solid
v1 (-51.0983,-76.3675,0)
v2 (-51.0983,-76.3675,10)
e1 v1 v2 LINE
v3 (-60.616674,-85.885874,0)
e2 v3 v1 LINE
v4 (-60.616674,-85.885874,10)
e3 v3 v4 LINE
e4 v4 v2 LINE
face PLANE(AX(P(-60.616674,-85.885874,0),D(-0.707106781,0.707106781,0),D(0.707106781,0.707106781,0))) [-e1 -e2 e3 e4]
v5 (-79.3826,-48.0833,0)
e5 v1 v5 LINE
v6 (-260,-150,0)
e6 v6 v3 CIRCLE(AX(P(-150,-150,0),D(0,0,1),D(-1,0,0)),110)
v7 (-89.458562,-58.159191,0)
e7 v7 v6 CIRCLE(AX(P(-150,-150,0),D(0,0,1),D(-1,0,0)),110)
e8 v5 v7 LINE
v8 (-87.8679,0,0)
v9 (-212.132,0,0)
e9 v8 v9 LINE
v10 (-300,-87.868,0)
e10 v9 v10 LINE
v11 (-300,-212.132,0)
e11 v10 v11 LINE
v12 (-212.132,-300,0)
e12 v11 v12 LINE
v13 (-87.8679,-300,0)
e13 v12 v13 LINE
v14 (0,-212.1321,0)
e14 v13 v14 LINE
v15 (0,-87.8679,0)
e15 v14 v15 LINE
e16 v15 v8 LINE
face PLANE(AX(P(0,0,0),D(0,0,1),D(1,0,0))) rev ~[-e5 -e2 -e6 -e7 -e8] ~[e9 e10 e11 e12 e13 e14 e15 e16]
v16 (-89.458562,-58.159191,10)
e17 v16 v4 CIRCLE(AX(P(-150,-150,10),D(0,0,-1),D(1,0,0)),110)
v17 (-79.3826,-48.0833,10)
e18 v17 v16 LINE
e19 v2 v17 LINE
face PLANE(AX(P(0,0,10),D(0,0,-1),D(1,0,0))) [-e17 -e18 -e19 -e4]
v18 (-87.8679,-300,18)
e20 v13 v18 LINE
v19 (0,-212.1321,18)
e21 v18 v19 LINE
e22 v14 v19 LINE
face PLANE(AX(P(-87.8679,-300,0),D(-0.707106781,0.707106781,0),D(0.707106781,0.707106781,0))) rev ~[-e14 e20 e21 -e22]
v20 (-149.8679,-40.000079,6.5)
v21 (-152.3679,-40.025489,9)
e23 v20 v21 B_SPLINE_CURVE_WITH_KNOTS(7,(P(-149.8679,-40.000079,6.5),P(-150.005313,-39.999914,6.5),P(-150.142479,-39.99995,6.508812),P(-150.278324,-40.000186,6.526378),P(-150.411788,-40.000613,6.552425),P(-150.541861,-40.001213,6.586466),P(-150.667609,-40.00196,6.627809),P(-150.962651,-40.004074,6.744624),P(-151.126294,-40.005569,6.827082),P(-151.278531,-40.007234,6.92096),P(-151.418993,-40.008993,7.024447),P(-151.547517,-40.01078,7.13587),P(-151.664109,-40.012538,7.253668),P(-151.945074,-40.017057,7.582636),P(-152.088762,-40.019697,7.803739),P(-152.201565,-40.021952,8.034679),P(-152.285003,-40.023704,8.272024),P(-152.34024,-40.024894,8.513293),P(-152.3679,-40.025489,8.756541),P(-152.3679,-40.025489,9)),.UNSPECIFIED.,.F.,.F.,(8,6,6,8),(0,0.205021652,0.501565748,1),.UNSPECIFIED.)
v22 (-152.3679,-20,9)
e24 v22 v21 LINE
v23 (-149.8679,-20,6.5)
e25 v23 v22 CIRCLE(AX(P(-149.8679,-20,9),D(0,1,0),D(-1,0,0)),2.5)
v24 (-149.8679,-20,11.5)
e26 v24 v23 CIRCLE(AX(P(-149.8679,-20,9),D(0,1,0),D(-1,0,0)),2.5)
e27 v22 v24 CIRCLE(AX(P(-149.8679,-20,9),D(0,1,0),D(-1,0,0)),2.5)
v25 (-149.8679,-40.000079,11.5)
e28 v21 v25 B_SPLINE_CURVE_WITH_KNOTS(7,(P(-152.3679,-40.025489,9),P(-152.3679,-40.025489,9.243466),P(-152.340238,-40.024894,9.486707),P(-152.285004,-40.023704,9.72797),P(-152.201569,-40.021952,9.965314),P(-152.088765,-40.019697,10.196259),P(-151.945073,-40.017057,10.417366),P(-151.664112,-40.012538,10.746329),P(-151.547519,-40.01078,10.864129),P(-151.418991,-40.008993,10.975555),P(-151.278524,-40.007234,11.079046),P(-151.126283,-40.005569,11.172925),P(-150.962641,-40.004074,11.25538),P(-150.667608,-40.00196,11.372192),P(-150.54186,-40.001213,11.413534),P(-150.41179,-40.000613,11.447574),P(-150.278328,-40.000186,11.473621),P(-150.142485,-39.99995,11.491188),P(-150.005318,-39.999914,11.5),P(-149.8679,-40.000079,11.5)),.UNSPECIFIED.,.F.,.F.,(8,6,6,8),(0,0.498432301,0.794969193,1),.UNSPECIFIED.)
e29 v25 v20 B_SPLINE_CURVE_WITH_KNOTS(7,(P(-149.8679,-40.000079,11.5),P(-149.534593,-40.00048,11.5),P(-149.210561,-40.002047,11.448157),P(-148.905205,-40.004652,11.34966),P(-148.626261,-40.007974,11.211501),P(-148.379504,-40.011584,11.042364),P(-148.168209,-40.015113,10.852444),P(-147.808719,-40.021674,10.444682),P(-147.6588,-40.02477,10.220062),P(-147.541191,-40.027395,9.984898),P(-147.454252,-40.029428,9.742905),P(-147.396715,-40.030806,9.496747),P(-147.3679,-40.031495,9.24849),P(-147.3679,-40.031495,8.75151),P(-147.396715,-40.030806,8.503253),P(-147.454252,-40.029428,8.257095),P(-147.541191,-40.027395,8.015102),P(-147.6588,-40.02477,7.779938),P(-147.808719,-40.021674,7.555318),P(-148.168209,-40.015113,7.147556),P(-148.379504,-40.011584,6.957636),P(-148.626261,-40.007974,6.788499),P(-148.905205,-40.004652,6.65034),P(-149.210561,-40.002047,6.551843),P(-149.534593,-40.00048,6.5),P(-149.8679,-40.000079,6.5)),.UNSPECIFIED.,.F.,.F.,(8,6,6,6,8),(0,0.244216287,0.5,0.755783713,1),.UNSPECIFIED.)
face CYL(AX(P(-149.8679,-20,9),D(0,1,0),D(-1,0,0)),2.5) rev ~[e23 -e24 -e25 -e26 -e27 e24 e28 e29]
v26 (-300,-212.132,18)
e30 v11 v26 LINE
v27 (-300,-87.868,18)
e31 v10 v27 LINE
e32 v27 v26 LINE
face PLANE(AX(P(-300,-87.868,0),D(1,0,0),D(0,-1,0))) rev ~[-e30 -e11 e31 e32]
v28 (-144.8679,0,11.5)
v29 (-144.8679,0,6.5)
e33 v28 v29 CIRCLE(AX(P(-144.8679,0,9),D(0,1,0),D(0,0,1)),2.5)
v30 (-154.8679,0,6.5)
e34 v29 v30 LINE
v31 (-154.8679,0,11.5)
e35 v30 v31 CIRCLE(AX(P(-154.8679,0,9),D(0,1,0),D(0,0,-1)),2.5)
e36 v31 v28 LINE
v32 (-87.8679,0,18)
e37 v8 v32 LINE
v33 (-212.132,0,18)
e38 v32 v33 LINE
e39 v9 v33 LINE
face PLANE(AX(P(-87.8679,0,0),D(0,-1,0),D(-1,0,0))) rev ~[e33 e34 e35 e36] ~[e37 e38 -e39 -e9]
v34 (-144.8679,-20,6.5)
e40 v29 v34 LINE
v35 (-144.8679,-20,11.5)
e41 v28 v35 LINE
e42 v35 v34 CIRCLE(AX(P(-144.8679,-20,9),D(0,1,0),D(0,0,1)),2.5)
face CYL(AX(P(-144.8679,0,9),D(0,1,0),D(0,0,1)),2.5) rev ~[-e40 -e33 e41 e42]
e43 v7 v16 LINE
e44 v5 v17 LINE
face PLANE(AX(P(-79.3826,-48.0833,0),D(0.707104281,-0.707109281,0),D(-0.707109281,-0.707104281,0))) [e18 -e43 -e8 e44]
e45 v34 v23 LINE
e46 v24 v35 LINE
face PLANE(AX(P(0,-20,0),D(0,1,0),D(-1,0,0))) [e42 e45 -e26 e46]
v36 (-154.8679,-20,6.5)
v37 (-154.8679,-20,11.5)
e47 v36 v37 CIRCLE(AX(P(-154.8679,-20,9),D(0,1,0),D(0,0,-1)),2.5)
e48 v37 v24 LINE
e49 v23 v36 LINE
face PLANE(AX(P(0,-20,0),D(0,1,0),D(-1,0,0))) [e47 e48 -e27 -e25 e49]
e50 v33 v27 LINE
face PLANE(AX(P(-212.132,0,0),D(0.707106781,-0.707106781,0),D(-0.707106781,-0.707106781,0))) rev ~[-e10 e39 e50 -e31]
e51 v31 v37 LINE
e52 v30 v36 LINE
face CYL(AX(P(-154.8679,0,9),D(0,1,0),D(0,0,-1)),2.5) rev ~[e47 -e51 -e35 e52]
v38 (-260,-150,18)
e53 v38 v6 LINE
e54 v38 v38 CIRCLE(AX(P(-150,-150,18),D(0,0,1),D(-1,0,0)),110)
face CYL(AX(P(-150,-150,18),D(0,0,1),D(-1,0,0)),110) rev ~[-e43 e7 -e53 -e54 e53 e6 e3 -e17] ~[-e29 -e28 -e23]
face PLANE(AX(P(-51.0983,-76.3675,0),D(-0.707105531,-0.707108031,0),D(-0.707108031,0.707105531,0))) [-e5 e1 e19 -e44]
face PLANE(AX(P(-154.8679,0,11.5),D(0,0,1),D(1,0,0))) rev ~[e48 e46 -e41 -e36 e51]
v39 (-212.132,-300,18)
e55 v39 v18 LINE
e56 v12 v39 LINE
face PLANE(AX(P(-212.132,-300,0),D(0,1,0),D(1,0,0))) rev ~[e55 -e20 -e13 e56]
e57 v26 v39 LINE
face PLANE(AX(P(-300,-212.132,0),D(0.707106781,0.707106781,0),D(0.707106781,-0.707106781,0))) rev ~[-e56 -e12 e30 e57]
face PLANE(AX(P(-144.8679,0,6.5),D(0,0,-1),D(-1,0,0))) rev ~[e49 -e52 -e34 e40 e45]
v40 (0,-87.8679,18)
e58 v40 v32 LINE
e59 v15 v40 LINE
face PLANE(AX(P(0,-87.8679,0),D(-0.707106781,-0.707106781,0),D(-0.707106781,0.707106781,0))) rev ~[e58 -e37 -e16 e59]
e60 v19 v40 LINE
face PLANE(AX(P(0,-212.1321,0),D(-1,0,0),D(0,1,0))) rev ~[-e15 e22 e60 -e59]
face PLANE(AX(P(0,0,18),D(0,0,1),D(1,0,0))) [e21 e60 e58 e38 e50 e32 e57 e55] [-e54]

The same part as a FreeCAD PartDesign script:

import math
import FreeCAD as App
import Part
import Sketcher
from FreeCAD import Vector
Q = App.Units.Quantity

doc = App.newDocument("Part")
body = doc.addObject("PartDesign::Body", "Body")

sketch1 = body.newObject("Sketcher::SketchObject", "Sketch")
sketch1.AttachmentSupport = (doc.getObject("XY_Plane"), [""])
sketch1.MapMode = "FlatFace"
sketch1.addGeometry([
    Part.LineSegment(Vector(0, -88, 0), Vector(-88, 0, 0)),
    Part.LineSegment(Vector(-88, 0, 0), Vector(-212, 0, 0)),
    Part.LineSegment(Vector(-212, 0, 0), Vector(-300, -88, 0)),
    Part.LineSegment(Vector(-300, -88, 0), Vector(-300, -212, 0)),
    Part.LineSegment(Vector(-300, -212, 0), Vector(-212, -300, 0)),
    Part.LineSegment(Vector(-212, -300, 0), Vector(-88, -300, 0)),
    Part.LineSegment(Vector(-88, -300, 0), Vector(0, -212, 0)),
    Part.LineSegment(Vector(0, -212, 0), Vector(0, -88, 0)),
], False)
sketch1.addConstraint([
    Sketcher.Constraint("Coincident", 0, 2, 1, 1),
    Sketcher.Constraint("Coincident", 1, 2, 2, 1),
    Sketcher.Constraint("Coincident", 2, 2, 3, 1),
    Sketcher.Constraint("Coincident", 3, 2, 4, 1),
    Sketcher.Constraint("Coincident", 4, 2, 5, 1),
    Sketcher.Constraint("Coincident", 5, 2, 6, 1),
    Sketcher.Constraint("Coincident", 6, 2, 7, 1),
    Sketcher.Constraint("Coincident", 7, 2, 0, 1),
    Sketcher.Constraint("Horizontal", 1),
    Sketcher.Constraint("Vertical", 3),
    Sketcher.Constraint("Horizontal", 5),
    Sketcher.Constraint("Vertical", 7),
    Sketcher.Constraint("PointOnObject", 0, 2, -1),
    Sketcher.Constraint("PointOnObject", 6, 2, -2),
    Sketcher.Constraint("Perpendicular", 0, 2),
    Sketcher.Constraint("Perpendicular", 2, 4),
    Sketcher.Constraint("Perpendicular", 4, 6),
    Sketcher.Constraint("Horizontal", 3, 2, 6, 2),
    Sketcher.Constraint("Horizontal", 2, 2, 7, 2),
    Sketcher.Constraint("Vertical", 1, 2, 4, 2),
    Sketcher.Constraint("Vertical", 0, 2, 5, 2),
    Sketcher.Constraint("Equal", 5, 3),
    Sketcher.Constraint("DistanceX", 2, 2, -1, 1, Q("300 mm")),
    Sketcher.Constraint("DistanceX", 0, 2, -1, 1, Q("87.868 mm")),
])
pad1 = body.newObject("PartDesign::Pad", "Pad")
pad1.Profile = sketch1
pad1.Length = 18

sketch2 = body.newObject("Sketcher::SketchObject", "Sketch001")
sketch2.AttachmentSupport = (doc.getObject("XY_Plane"), [""])
sketch2.MapMode = "FlatFace"
sketch2.AttachmentOffset = App.Placement(Vector(0, 0, 18), App.Rotation())
sketch2.addGeometry(Part.Circle(Vector(-150, -150, 0), Vector(0, 0, 1), 110), False)
sketch2.addConstraint([
    Sketcher.Constraint("Diameter", 0, Q("220 mm")),
    Sketcher.Constraint("DistanceX", 0, 3, -1, 1, Q("150 mm")),
    Sketcher.Constraint("DistanceY", 0, 3, -1, 1, Q("150 mm")),
])
pocket1 = body.newObject("PartDesign::Pocket", "Pocket")
pocket1.Profile = sketch2
pocket1.Length = 18

sketch3 = body.newObject("Sketcher::SketchObject", "Sketch002")
sketch3.AttachmentSupport = (doc.getObject("XY_Plane"), [""])
sketch3.MapMode = "FlatFace"
sketch3.addGeometry([
    Part.ArcOfCircle(Part.Circle(Vector(-150, -150, 0), Vector(0, 0, 1), 110), math.radians(36), math.radians(57)),
    Part.LineSegment(Vector(-89, -58, 0), Vector(-79, -48, 0)),
    Part.LineSegment(Vector(-79, -48, 0), Vector(-51, -76, 0)),
    Part.LineSegment(Vector(-51, -76, 0), Vector(-61, -86, 0)),
], False)
sketch3.addConstraint([
    Sketcher.Constraint("Coincident", 0, 2, 1, 1),
    Sketcher.Constraint("Coincident", 1, 2, 2, 1),
    Sketcher.Constraint("Coincident", 2, 2, 3, 1),
    Sketcher.Constraint("Coincident", 3, 2, 0, 1),
    Sketcher.Constraint("Perpendicular", 1, 2),
    Sketcher.Constraint("Perpendicular", 2, 3),
    Sketcher.Constraint("Distance", 2, Q("40 mm")),
    Sketcher.Constraint("Radius", 0, Q("110 mm")),
    Sketcher.Constraint("Angle", 1, Q("44.9998 deg")),
    Sketcher.Constraint("DistanceX", 0, 3, -1, 1, Q("150 mm")),
    Sketcher.Constraint("DistanceY", 0, 3, -1, 1, Q("150 mm")),
    Sketcher.Constraint("Distance", 3, Q("13.461 mm")),
    Sketcher.Constraint("Distance", 1, Q("14.2495 mm")),
])
pocket2 = body.newObject("PartDesign::Pocket", "Pocket001")
pocket2.Profile = sketch3
pocket2.Length = 10
pocket2.Reversed = True

sketch4 = body.newObject("Sketcher::SketchObject", "Sketch003")
sketch4.AttachmentSupport = (doc.getObject("XZ_Plane"), [""])
sketch4.MapMode = "FlatFace"
sketch4.addGeometry([
    Part.ArcOfCircle(Part.Circle(Vector(-144.9, 9, 0), Vector(0, 0, 1), 2.5), math.radians(-90), math.radians(90)),
    Part.LineSegment(Vector(-144.9, 6.5, 0), Vector(-154.9, 6.5, 0)),
    Part.ArcOfCircle(Part.Circle(Vector(-154.9, 9, 0), Vector(0, 0, 1), 2.5), math.radians(90), math.radians(270)),
    Part.LineSegment(Vector(-154.9, 11.5, 0), Vector(-144.9, 11.5, 0)),
], False)
sketch4.addConstraint([
    Sketcher.Constraint("Tangent", 0, 1, 1, 1),
    Sketcher.Constraint("Tangent", 1, 2, 2, 2),
    Sketcher.Constraint("Tangent", 2, 1, 3, 1),
    Sketcher.Constraint("Tangent", 3, 2, 0, 2),
    Sketcher.Constraint("Horizontal", 1),
    Sketcher.Constraint("Horizontal", 3),
    Sketcher.Constraint("Radius", 0, Q("2.5 mm")),
    Sketcher.Constraint("DistanceX", 1, 2, 1, 1, Q("10 mm")),
    Sketcher.Constraint("DistanceY", -1, 1, 0, 3, Q("9 mm")),
    Sketcher.Constraint("DistanceX", 0, 3, -1, 1, Q("144.868 mm")),
])
pocket3 = body.newObject("PartDesign::Pocket", "Pocket002")
pocket3.Profile = sketch4
pocket3.Length = 20
pocket3.Reversed = True

sketch5 = body.newObject("Sketcher::SketchObject", "Sketch004")
sketch5.AttachmentSupport = (doc.getObject("XZ_Plane"), [""])
sketch5.MapMode = "FlatFace"
sketch5.AttachmentOffset = App.Placement(Vector(0, 0, 20), App.Rotation())
sketch5.addGeometry(Part.Circle(Vector(-149.9, 9, 0), Vector(0, 0, 1), 2.5), False)
sketch5.addConstraint([
    Sketcher.Constraint("Diameter", 0, Q("5 mm")),
    Sketcher.Constraint("DistanceY", -1, 1, 0, 3, Q("9 mm")),
    Sketcher.Constraint("DistanceX", 0, 3, -1, 1, Q("149.868 mm")),
])
pocket4 = body.newObject("PartDesign::Pocket", "Pocket003")
pocket4.Profile = sketch5
pocket4.Length = 40
pocket4.Reversed = True

doc.recompute()
